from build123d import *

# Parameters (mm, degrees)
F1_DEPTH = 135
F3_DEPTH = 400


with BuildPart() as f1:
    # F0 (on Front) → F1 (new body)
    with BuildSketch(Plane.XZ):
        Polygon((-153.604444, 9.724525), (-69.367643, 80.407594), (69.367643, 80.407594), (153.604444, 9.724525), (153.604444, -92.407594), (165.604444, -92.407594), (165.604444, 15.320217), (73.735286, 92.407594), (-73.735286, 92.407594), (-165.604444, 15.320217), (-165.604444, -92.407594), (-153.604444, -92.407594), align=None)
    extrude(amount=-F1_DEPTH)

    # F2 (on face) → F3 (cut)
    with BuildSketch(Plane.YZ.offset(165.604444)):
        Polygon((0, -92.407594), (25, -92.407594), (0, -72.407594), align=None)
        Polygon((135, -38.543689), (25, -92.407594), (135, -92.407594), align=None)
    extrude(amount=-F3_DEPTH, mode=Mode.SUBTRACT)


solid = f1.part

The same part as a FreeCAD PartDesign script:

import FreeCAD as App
import Part
import Sketcher
Q = App.Units.Quantity


def add_polygon(sketch, points):
    """Adds a closed chain of lines whose ends are joined by coincident constraints."""
    first, n = sketch.GeometryCount, len(points)
    for a, b in zip(points, points[1:] + points[:1]):
        sketch.addGeometry(Part.LineSegment(App.Vector(*a, 0), App.Vector(*b, 0)), False)
    for i in range(n):
        sketch.addConstraint(Sketcher.Constraint("Coincident", first + i, 2, first + (i + 1) % n, 1))

doc = App.newDocument("Part")
params = doc.addObject("Spreadsheet::Sheet", "Params")
for row, (alias, value) in enumerate([
    ("sketch1_width", "12 mm"),
    ("pad1_length", "135 mm"),
    ("sketch2_width", "25 mm"),
    ("sketch2_width2", "110 mm"),
    ("sketch2_height", "20 mm"),
    ("pocket1_length", "400 mm"),
], start=1):
    params.set(f"A{row}", alias)
    params.set(f"B{row}", "=" + value)
    params.setAlias(f"B{row}", alias)

body = doc.addObject("PartDesign::Body", "Body")

# Sketch on XZ plane
sketch1 = body.newObject("Sketcher::SketchObject", "Sketch")
sketch1.AttachmentSupport = (doc.getObject("XZ_Plane"), [""])
sketch1.MapMode = "FlatFace"
add_polygon(sketch1, [(-154, 10), (-69, 80), (69, 80), (154, 10), (154, -92), (166, -92), (166, 15), (74, 92), (-74, 92), (-166, 15), (-166, -92), (-154, -92)])  # lines 0-11
sketch1.addConstraint([
    Sketcher.Constraint("Horizontal", 1),
    Sketcher.Constraint("Vertical", 3),
    Sketcher.Constraint("Horizontal", 4),
    Sketcher.Constraint("Vertical", 5),
    Sketcher.Constraint("Horizontal", 7),
    Sketcher.Constraint("Vertical", 9),
    Sketcher.Constraint("Horizontal", 10),
    Sketcher.Constraint("Vertical", 11),
    Sketcher.Constraint("Symmetric", 5, 2, 8, 2, -2),
    Sketcher.Constraint("Symmetric", 3, 2, 10, 2, -2),
    Sketcher.Constraint("Parallel", 2, 6),
    Sketcher.Constraint("Parallel", 0, 8),
    Sketcher.Constraint("Horizontal", 2, 2, 11, 2),
    Sketcher.Constraint("Equal", 0, 2),
    Sketcher.Constraint("DistanceX", 4, 1, 4, 2, 12.0),
    Sketcher.Constraint("Angle", 0, Q("40 deg")),
    Sketcher.Constraint("DistanceY", 1, 2, 6, 2, 12.0),
    Sketcher.Constraint("DistanceX", 7, 2, 7, 1, 147.470572),
    Sketcher.Constraint("DistanceY", 3, 2, 3, 1, 102.132119),
    Sketcher.Constraint("DistanceY", 5, 1, 5, 2, 107.727811),
    Sketcher.Constraint("DistanceX", 1, 2, 2, 2, 84.236801),
    Sketcher.Constraint("DistanceY", -1, 1, 0, 2, 80.407594),
])
sketch1.setExpression("Constraints[26]", "Params.sketch1_width")
pad1 = body.newObject("PartDesign::Pad", "Pad")
pad1.Profile = sketch1
pad1.setExpression("Length", "Params.pad1_length")
pad1.Reversed = True

# Sketch on YZ plane
sketch2 = body.newObject("Sketcher::SketchObject", "Sketch001")
sketch2.AttachmentSupport = (doc.getObject("YZ_Plane"), [""])
sketch2.MapMode = "FlatFace"
sketch2.AttachmentOffset = App.Placement(App.Vector(0, 0, 165.604444), App.Rotation())
add_polygon(sketch2, [(0, -92), (25, -92), (0, -72)])  # lines 0-2
add_polygon(sketch2, [(135, -39), (25, -92), (135, -92)])  # lines 3-5
sketch2.addConstraint([
    Sketcher.Constraint("Horizontal", 0),
    Sketcher.Constraint("Vertical", 2),
    Sketcher.Constraint("Horizontal", 4),
    Sketcher.Constraint("Vertical", 5),
    Sketcher.Constraint("Coincident", 3, 2, 0, 2),
    Sketcher.Constraint("PointOnObject", 1, 2, -2),
    Sketcher.Constraint("DistanceX", 0, 1, 0, 2, 25.0),
    Sketcher.Constraint("DistanceX", 4, 1, 4, 2, 110.0),
    Sketcher.Constraint("DistanceY", 2, 2, 2, 1, 20.0),
    Sketcher.Constraint("DistanceY", 5, 1, 5, 2, 53.863905),
    Sketcher.Constraint("DistanceY", 5, 2, -1, 1, 38.543689),
])
sketch2.setExpression("Constraints[12]", "Params.sketch2_width")
sketch2.setExpression("Constraints[13]", "Params.sketch2_width2")
sketch2.setExpression("Constraints[14]", "Params.sketch2_height")
pocket1 = body.newObject("PartDesign::Pocket", "Pocket")
pocket1.Profile = sketch2
pocket1.setExpression("Length", "Params.pocket1_length")

doc.recompute()
